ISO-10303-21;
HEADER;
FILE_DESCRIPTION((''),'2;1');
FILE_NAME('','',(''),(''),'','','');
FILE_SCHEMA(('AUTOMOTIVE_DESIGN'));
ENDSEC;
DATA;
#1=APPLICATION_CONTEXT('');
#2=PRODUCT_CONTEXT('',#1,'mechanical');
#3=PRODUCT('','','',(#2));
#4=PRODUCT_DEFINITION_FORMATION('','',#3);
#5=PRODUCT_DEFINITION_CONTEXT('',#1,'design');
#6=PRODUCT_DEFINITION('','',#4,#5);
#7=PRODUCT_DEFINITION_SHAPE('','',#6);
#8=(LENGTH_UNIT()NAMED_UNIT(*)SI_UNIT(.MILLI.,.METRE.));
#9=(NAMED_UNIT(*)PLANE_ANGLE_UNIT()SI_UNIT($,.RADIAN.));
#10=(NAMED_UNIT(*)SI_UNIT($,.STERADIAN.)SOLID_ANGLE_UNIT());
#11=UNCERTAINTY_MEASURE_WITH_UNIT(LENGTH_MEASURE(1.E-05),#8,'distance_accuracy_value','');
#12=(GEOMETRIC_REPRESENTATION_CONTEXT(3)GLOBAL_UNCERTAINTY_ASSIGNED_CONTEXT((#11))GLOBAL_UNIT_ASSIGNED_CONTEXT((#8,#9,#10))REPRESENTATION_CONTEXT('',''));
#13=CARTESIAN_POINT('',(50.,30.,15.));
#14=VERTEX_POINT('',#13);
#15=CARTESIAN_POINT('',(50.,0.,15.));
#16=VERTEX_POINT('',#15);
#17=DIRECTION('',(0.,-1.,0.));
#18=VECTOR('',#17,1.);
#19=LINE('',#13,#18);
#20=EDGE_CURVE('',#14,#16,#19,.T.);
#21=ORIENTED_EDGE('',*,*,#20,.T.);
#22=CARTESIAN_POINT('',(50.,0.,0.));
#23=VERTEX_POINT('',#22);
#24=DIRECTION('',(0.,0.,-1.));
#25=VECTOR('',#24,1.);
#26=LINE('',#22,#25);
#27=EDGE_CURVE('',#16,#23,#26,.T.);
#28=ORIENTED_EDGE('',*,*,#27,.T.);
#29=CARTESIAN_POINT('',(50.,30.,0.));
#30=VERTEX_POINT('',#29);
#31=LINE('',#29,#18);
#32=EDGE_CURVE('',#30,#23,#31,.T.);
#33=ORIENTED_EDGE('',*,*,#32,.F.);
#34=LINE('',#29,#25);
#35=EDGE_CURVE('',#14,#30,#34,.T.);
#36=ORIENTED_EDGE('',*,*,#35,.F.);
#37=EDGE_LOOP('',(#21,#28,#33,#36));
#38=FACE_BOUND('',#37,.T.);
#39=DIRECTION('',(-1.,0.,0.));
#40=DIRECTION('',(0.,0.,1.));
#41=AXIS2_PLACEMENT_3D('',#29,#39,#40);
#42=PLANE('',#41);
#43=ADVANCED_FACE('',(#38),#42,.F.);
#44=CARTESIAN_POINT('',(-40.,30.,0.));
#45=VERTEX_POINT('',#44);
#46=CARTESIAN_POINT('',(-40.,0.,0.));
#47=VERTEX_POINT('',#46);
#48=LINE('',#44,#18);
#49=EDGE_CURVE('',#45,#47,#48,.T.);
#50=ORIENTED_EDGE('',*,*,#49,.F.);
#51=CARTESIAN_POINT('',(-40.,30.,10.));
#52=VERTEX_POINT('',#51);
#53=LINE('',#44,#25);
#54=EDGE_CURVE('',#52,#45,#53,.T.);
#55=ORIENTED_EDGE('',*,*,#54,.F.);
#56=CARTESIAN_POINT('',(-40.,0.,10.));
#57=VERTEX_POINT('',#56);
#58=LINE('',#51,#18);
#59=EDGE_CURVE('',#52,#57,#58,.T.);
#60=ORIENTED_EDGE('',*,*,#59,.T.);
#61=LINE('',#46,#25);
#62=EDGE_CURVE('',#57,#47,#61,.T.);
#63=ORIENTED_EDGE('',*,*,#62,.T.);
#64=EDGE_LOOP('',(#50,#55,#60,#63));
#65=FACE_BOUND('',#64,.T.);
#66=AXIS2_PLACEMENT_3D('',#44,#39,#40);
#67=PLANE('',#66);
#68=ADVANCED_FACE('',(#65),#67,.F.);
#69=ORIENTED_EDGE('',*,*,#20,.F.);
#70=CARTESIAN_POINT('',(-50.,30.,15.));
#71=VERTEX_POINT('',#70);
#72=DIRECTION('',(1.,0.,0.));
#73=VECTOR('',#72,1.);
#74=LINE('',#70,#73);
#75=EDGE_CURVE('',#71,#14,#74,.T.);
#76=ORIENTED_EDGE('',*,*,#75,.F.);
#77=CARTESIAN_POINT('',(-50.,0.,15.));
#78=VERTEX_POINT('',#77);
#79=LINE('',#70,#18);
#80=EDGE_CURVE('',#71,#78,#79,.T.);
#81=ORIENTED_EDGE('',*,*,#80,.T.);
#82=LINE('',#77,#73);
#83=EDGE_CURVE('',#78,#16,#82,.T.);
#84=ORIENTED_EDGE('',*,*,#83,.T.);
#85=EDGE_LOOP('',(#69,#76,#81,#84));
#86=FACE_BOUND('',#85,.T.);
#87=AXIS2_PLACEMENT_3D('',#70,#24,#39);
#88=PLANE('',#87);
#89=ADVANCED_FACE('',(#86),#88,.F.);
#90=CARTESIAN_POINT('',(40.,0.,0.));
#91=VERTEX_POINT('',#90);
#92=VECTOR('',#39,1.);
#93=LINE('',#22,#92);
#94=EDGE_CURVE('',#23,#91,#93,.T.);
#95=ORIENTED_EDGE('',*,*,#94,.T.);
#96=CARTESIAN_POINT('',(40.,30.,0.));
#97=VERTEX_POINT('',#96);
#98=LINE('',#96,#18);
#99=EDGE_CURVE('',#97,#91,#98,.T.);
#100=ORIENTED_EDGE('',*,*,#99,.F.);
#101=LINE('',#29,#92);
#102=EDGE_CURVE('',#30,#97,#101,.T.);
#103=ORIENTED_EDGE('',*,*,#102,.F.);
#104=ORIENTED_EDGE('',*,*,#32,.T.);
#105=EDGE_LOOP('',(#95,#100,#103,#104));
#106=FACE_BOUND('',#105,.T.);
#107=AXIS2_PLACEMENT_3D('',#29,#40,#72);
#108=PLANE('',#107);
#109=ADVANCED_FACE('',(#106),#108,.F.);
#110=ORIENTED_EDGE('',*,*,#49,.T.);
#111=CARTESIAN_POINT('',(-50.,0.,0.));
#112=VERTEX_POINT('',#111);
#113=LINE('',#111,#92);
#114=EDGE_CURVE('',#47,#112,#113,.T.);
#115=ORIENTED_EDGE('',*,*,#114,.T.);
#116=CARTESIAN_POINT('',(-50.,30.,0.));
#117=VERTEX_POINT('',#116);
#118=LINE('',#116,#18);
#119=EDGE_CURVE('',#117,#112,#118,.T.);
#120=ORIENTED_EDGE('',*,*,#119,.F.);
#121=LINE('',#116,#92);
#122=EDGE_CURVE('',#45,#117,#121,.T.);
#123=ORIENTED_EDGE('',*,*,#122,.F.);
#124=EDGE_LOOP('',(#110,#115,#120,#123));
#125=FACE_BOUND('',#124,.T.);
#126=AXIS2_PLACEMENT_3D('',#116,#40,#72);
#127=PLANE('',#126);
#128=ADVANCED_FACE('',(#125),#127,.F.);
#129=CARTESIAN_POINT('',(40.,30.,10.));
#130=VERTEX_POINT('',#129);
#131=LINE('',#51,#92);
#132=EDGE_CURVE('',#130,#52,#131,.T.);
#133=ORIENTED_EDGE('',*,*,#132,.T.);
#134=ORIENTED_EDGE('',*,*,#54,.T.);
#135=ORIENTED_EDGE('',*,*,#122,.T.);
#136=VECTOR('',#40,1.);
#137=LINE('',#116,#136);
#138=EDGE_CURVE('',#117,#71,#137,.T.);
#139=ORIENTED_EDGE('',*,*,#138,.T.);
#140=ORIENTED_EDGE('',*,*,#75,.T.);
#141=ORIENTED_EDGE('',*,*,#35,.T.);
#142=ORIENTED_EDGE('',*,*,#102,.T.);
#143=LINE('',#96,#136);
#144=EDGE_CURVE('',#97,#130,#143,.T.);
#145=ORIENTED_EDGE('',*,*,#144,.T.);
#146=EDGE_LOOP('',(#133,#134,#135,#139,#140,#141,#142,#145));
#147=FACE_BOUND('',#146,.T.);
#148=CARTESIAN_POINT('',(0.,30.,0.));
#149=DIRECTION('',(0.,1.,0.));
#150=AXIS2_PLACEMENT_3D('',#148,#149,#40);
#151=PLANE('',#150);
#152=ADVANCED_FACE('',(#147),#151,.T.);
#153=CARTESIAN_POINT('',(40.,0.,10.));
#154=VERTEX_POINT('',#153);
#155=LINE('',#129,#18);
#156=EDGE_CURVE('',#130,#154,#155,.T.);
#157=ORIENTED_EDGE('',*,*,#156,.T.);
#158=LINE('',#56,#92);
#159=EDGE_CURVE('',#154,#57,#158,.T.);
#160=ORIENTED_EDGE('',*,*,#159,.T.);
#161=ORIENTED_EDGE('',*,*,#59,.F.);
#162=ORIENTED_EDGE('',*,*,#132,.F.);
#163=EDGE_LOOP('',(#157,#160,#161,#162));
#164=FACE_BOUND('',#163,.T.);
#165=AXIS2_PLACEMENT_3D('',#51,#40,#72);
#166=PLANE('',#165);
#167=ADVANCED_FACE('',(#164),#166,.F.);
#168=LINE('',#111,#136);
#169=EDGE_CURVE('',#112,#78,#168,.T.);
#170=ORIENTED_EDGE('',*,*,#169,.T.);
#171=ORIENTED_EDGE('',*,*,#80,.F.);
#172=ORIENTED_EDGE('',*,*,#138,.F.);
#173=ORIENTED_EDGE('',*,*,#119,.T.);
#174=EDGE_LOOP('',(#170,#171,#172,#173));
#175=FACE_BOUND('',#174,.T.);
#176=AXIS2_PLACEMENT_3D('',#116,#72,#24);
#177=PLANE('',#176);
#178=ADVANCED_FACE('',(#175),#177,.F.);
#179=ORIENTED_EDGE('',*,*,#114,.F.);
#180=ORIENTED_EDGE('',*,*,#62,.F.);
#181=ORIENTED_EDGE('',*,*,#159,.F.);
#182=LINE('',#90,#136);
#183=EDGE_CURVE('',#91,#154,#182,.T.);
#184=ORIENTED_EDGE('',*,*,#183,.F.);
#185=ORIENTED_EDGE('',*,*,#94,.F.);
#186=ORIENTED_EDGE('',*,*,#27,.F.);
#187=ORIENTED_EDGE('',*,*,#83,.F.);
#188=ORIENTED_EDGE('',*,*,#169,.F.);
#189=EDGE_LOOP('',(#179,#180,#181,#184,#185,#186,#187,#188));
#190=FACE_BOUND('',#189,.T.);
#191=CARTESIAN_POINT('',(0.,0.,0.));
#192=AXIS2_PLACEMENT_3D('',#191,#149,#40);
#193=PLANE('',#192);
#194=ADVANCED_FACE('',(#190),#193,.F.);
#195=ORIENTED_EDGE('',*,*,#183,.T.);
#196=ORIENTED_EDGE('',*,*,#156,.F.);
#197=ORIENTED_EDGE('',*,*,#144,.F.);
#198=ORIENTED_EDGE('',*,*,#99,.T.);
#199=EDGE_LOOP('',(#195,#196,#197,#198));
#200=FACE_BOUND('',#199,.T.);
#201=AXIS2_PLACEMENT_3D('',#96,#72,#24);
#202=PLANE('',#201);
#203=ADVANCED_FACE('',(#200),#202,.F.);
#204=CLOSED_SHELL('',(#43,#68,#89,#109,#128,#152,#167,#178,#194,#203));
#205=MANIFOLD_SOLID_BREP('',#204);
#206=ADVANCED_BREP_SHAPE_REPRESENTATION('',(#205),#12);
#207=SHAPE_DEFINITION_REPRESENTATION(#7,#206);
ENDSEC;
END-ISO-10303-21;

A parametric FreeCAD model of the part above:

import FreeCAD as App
import Part
import Sketcher
from FreeCAD import Vector


def add_polygon(sketch, points):
    """Adds a closed chain of lines whose ends are joined by coincident constraints."""
    first, n = sketch.GeometryCount, len(points)
    for a, b in zip(points, points[1:] + points[:1]):
        sketch.addGeometry(Part.LineSegment(App.Vector(*a, 0), App.Vector(*b, 0)), False)
    for i in range(n):
        sketch.addConstraint(Sketcher.Constraint("Coincident", first + i, 2, first + (i + 1) % n, 1))

doc = App.newDocument("Part")
body = doc.addObject("PartDesign::Body", "Body")

sketch1 = body.newObject("Sketcher::SketchObject", "Sketch")
sketch1.AttachmentSupport = (doc.getObject("XZ_Plane"), [""])
sketch1.MapMode = "FlatFace"
add_polygon(sketch1, [(-40, 0), (-50, 0), (-50, 15), (50, 15), (50, 0), (40, 0), (40, 10), (-40, 10)])
sketch1.addConstraint(Sketcher.Constraint("Horizontal", 0))
sketch1.addConstraint(Sketcher.Constraint("Vertical", 1))
sketch1.addConstraint(Sketcher.Constraint("Horizontal", 2))
sketch1.addConstraint(Sketcher.Constraint("Vertical", 3))
sketch1.addConstraint(Sketcher.Constraint("Horizontal", 4))
sketch1.addConstraint(Sketcher.Constraint("Vertical", 5))
sketch1.addConstraint(Sketcher.Constraint("Horizontal", 6))
sketch1.addConstraint(Sketcher.Constraint("Vertical", 7))
sketch1.addConstraint(Sketcher.Constraint("Symmetric", 0, 2, 3, 2, -1, 1))
sketch1.addConstraint(Sketcher.Constraint("Symmetric", 4, 2, 7, 2, -2))
sketch1.addConstraint(Sketcher.Constraint("Equal", 4, 5))
sketch1.addConstraint(Sketcher.Constraint("DistanceX", 0, 2, 0, 1, 10.0))
sketch1.addConstraint(Sketcher.Constraint("DistanceX", 2, 1, 2, 2, 100.0))
sketch1.addConstraint(Sketcher.Constraint("DistanceY", 1, 1, 1, 2, 15.0))
pad1 = body.newObject("PartDesign::Pad", "Pad")
pad1.Profile = sketch1
pad1.Length = 30
pad1.Reversed = True

doc.recompute()
